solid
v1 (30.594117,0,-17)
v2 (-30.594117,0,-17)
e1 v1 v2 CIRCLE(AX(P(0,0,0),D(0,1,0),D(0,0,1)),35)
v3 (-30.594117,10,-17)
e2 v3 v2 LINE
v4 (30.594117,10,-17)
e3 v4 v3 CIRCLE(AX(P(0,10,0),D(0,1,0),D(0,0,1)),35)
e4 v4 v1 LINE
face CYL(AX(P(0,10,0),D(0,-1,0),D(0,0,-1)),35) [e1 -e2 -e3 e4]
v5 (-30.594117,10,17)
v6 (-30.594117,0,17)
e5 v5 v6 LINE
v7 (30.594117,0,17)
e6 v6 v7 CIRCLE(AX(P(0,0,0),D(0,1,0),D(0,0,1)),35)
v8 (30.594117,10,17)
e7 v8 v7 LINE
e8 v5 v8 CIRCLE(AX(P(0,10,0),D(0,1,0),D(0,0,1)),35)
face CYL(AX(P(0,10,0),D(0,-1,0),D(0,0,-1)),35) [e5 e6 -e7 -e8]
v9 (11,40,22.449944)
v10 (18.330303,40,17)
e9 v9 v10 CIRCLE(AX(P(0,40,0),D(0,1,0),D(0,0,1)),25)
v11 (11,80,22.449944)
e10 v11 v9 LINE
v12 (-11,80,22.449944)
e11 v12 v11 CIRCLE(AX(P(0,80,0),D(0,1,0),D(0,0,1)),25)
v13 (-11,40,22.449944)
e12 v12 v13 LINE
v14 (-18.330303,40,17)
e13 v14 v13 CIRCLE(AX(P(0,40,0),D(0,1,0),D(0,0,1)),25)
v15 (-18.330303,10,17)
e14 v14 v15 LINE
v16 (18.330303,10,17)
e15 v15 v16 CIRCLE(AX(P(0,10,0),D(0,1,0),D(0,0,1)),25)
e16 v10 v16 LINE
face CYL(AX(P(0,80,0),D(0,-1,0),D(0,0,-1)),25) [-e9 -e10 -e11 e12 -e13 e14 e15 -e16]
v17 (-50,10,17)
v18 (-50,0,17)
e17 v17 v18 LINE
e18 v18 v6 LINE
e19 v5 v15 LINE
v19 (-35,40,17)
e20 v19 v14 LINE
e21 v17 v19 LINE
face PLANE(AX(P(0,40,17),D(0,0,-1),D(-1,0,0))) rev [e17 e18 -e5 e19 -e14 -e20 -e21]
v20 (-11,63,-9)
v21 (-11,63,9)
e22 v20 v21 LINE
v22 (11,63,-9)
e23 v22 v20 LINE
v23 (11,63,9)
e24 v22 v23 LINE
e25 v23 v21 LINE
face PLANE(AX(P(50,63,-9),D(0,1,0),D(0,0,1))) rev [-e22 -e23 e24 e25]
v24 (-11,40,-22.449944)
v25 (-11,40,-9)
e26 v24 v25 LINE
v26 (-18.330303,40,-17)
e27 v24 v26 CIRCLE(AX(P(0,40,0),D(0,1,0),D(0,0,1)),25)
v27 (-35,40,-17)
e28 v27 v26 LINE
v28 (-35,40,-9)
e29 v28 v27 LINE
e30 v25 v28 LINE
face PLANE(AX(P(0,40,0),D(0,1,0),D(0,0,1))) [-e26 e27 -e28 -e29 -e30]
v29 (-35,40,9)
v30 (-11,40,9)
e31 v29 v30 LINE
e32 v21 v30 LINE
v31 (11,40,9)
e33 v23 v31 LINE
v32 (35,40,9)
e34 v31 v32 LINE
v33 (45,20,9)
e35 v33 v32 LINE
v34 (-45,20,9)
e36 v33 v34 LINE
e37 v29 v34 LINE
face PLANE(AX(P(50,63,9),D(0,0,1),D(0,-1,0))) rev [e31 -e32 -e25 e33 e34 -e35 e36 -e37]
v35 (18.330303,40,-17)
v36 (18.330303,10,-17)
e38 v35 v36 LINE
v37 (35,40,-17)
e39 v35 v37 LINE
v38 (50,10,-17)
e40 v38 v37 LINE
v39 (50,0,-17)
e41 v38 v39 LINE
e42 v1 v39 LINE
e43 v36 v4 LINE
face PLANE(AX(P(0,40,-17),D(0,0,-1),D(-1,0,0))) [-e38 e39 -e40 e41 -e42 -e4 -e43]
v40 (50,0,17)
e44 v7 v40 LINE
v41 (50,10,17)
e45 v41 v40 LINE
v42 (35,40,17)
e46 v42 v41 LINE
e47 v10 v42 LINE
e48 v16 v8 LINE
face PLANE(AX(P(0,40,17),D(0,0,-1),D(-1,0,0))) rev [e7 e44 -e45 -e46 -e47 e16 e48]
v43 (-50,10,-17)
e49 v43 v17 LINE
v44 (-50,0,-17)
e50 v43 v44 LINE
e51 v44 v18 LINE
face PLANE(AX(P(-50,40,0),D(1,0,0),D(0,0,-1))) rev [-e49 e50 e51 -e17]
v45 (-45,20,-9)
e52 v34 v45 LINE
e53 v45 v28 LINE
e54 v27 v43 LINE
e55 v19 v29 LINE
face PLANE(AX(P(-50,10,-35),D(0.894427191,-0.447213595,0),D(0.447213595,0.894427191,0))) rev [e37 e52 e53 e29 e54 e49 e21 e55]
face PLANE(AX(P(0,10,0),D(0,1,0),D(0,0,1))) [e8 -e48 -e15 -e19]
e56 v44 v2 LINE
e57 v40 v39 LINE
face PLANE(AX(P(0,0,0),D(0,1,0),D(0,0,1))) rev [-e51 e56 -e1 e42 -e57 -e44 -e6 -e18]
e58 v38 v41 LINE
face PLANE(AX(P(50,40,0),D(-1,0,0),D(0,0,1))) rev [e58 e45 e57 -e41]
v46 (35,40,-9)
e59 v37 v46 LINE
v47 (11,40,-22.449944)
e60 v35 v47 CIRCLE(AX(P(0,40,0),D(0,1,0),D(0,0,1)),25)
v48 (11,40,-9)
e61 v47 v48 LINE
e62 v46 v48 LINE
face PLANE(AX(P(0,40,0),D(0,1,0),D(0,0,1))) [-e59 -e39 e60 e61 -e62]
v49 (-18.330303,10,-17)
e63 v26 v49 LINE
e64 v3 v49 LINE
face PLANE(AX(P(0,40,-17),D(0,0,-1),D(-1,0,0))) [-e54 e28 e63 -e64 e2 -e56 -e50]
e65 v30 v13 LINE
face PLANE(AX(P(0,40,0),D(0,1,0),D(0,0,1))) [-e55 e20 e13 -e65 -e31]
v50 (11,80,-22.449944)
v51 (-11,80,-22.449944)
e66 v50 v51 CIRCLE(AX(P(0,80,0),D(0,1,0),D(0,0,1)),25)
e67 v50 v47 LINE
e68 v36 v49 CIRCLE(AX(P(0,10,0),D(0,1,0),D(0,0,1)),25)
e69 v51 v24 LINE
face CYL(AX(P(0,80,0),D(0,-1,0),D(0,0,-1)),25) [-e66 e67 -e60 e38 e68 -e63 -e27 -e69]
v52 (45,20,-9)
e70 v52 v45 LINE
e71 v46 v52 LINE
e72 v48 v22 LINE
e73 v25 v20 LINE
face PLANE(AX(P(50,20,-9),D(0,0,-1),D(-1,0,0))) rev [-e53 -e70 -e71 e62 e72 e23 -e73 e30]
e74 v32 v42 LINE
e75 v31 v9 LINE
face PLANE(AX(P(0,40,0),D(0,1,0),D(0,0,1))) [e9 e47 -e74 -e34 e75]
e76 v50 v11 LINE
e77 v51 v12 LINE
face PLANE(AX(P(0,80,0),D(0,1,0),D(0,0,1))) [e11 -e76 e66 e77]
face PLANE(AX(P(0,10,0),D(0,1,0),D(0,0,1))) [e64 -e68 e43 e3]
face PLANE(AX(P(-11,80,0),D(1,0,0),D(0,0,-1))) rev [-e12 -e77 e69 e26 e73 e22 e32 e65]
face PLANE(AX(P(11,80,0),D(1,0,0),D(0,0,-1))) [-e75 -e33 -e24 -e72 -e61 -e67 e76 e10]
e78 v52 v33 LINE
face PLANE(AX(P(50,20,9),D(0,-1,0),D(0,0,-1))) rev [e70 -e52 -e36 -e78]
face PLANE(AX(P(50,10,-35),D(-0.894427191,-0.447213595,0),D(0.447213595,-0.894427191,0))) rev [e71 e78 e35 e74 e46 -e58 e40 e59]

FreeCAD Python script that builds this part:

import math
import FreeCAD as App
import Part
import Sketcher

V = App.Vector


def add_polygon(sketch, points):
    """Adds a closed chain of lines whose ends are joined by coincident constraints."""
    first, n = sketch.GeometryCount, len(points)
    for a, b in zip(points, points[1:] + points[:1]):
        sketch.addGeometry(Part.LineSegment(App.Vector(*a, 0), App.Vector(*b, 0)), False)
    for i in range(n):
        sketch.addConstraint(Sketcher.Constraint("Coincident", first + i, 2, first + (i + 1) % n, 1))

doc = App.newDocument("Part")
body = doc.addObject("PartDesign::Body", "Body")

# Sketch on XZ plane
sketch1 = body.newObject("Sketcher::SketchObject", "Sketch")
sketch1.AttachmentSupport = (doc.getObject("XZ_Plane"), [""])
sketch1.MapMode = "FlatFace"
sketch1.addGeometry(Part.ArcOfCircle(Part.Circle(V(0, 0, 0), V(0, 0, 1), 25), math.radians(-116), math.radians(-64)), False)
sketch1.addGeometry(Part.LineSegment(V(-11, -22, 0), V(-11, 22, 0)), False)
sketch1.addGeometry(Part.ArcOfCircle(Part.Circle(V(0, 0, 0), V(0, 0, 1), 25), math.radians(64), math.radians(116)), False)
sketch1.addGeometry(Part.LineSegment(V(11, 22, 0), V(11, -22, 0)), False)
sketch1.addConstraint(Sketcher.Constraint("Coincident", 0, 1, 1, 1))
sketch1.addConstraint(Sketcher.Constraint("Coincident", 1, 2, 2, 2))
sketch1.addConstraint(Sketcher.Constraint("Coincident", 2, 1, 3, 1))
sketch1.addConstraint(Sketcher.Constraint("Coincident", 3, 2, 0, 2))
sketch1.addConstraint(Sketcher.Constraint("Vertical", 1))
sketch1.addConstraint(Sketcher.Constraint("Vertical", 3))
sketch1.addConstraint(Sketcher.Constraint("Coincident", 0, 3, -1, 1))
sketch1.addConstraint(Sketcher.Constraint("Coincident", 2, 3, -1, 1))
sketch1.addConstraint(Sketcher.Constraint("Equal", 0, 2))
sketch1.addConstraint(Sketcher.Constraint("Horizontal", 1, 2, 2, 1))
sketch1.addConstraint(Sketcher.Constraint("Radius", 0, 25.0))
sketch1.addConstraint(Sketcher.Constraint("DistanceX", 0, 1, -1, 1, 11.0))
pad1 = body.newObject("PartDesign::Pad", "Pad")
pad1.Profile = sketch1
pad1.Length = 80
pad1.Reversed = True

# Sketch on XZ plane
sketch2 = body.newObject("Sketcher::SketchObject", "Sketch001")
sketch2.AttachmentSupport = (doc.getObject("XZ_Plane"), [""])
sketch2.MapMode = "FlatFace"
sketch2.addGeometry(Part.ArcOfCircle(Part.Circle(V(0, 0, 0), V(0, 0, 1), 25), math.radians(-116), math.radians(-64)), False)
sketch2.addGeometry(Part.ArcOfCircle(Part.Circle(V(0, 0, 0), V(0, 0, 1), 25), math.radians(-64), math.radians(-43)), False)
sketch2.addGeometry(Part.LineSegment(V(18, -17, 0), V(31, -17, 0)), False)
sketch2.addGeometry(Part.ArcOfCircle(Part.Circle(V(0, 0, 0), V(0, 0, 1), 35), math.radians(-151), math.radians(-29)), False)
sketch2.addGeometry(Part.LineSegment(V(-31, -17, 0), V(-18, -17, 0)), False)
sketch2.addGeometry(Part.ArcOfCircle(Part.Circle(V(0, 0, 0), V(0, 0, 1), 25), math.radians(-137), math.radians(-116)), False)
sketch2.addGeometry(Part.ArcOfCircle(Part.Circle(V(0, 0, 0), V(0, 0, 1), 25), math.radians(43), math.radians(64)), False)
sketch2.addGeometry(Part.ArcOfCircle(Part.Circle(V(0, 0, 0), V(0, 0, 1), 25), math.radians(64), math.radians(116)), False)
sketch2.addGeometry(Part.ArcOfCircle(Part.Circle(V(0, 0, 0), V(0, 0, 1), 25), math.radians(116), math.radians(137)), False)
sketch2.addGeometry(Part.LineSegment(V(-18, 17, 0), V(-31, 17, 0)), False)
sketch2.addGeometry(Part.ArcOfCircle(Part.Circle(V(0, 0, 0), V(0, 0, 1), 35), math.radians(29), math.radians(151)), False)
sketch2.addGeometry(Part.LineSegment(V(31, 17, 0), V(18, 17, 0)), False)
sketch2.addConstraint(Sketcher.Constraint("Tangent", 0, 2, 1, 1))
sketch2.addConstraint(Sketcher.Constraint("Coincident", 1, 2, 2, 1))
sketch2.addConstraint(Sketcher.Constraint("Coincident", 2, 2, 3, 2))
sketch2.addConstraint(Sketcher.Constraint("Coincident", 3, 1, 4, 1))
sketch2.addConstraint(Sketcher.Constraint("Coincident", 4, 2, 5, 1))
sketch2.addConstraint(Sketcher.Constraint("Tangent", 5, 2, 0, 1))
sketch2.addConstraint(Sketcher.Constraint("Tangent", 6, 2, 7, 1))
sketch2.addConstraint(Sketcher.Constraint("Tangent", 7, 2, 8, 1))
sketch2.addConstraint(Sketcher.Constraint("Coincident", 8, 2, 9, 1))
sketch2.addConstraint(Sketcher.Constraint("Coincident", 9, 2, 10, 2))
sketch2.addConstraint(Sketcher.Constraint("Coincident", 10, 1, 11, 1))
sketch2.addConstraint(Sketcher.Constraint("Coincident", 11, 2, 6, 1))
sketch2.addConstraint(Sketcher.Constraint("Horizontal", 2))
sketch2.addConstraint(Sketcher.Constraint("Horizontal", 4))
sketch2.addConstraint(Sketcher.Constraint("Horizontal", 9))
sketch2.addConstraint(Sketcher.Constraint("Horizontal", 11))
sketch2.addConstraint(Sketcher.Constraint("Coincident", 0, 3, -1, 1))
sketch2.addConstraint(Sketcher.Constraint("Coincident", 3, 3, -1, 1))
sketch2.addConstraint(Sketcher.Constraint("Coincident", 6, 3, -1, 1))
sketch2.addConstraint(Sketcher.Constraint("Coincident", 8, 3, -1, 1))
sketch2.addConstraint(Sketcher.Constraint("Coincident", 10, 3, -1, 1))
sketch2.addConstraint(Sketcher.Constraint("Equal", 0, 1))
sketch2.addConstraint(Sketcher.Constraint("Equal", 1, 5))
sketch2.addConstraint(Sketcher.Constraint("Equal", 5, 6))
sketch2.addConstraint(Sketcher.Constraint("Equal", 3, 10))
sketch2.addConstraint(Sketcher.Constraint("Horizontal", 2, 2, 3, 1))
sketch2.addConstraint(Sketcher.Constraint("Horizontal", 0, 2, 5, 2))
sketch2.addConstraint(Sketcher.Constraint("Horizontal", 6, 2, 7, 2))
sketch2.addConstraint(Sketcher.Constraint("Horizontal", 9, 2, 10, 1))
sketch2.addConstraint(Sketcher.Constraint("Vertical", 0, 2, 6, 2))
sketch2.addConstraint(Sketcher.Constraint("Vertical", 4, 2, 8, 2))
sketch2.addConstraint(Sketcher.Constraint("Radius", 0, 25.0))
sketch2.addConstraint(Sketcher.Constraint("Radius", 3, 35.0))
sketch2.addConstraint(Sketcher.Constraint("DistanceX", -1, 1, 0, 2, 11.0))
sketch2.addConstraint(Sketcher.Constraint("DistanceY", 1, 2, -1, 1, 17.0))
pad2 = body.newObject("PartDesign::Pad", "Pad001")
pad2.Profile = sketch2
pad2.Length = 10
pad2.Reversed = True

# Sketch on XZ plane
sketch3 = body.newObject("Sketcher::SketchObject", "Sketch002")
sketch3.AttachmentSupport = (doc.getObject("XZ_Plane"), [""])
sketch3.MapMode = "FlatFace"
sketch3.addGeometry(Part.LineSegment(V(-50, -17, 0), V(-50, 17, 0)), False)
sketch3.addGeometry(Part.LineSegment(V(-50, 17, 0), V(-18, 17, 0)), False)
sketch3.addGeometry(Part.ArcOfCircle(Part.Circle(V(0, 0, 0), V(0, 0, 1), 25), math.radians(116), math.radians(137)), False)
sketch3.addGeometry(Part.LineSegment(V(-11, 22, 0), V(-11, -22, 0)), False)
sketch3.addGeometry(Part.ArcOfCircle(Part.Circle(V(0, 0, 0), V(0, 0, 1), 25), math.radians(-137), math.radians(-116)), False)
sketch3.addGeometry(Part.LineSegment(V(-18, -17, 0), V(-50, -17, 0)), False)
sketch3.addGeometry(Part.LineSegment(V(50, 17, 0), V(50, -17, 0)), False)
sketch3.addGeometry(Part.LineSegment(V(50, -17, 0), V(18, -17, 0)), False)
sketch3.addGeometry(Part.ArcOfCircle(Part.Circle(V(0, 0, 0), V(0, 0, 1), 25), math.radians(-64), math.radians(-43)), False)
sketch3.addGeometry(Part.LineSegment(V(11, -22, 0), V(11, 22, 0)), False)
sketch3.addGeometry(Part.ArcOfCircle(Part.Circle(V(0, 0, 0), V(0, 0, 1), 25), math.radians(43), math.radians(64)), False)
sketch3.addGeometry(Part.LineSegment(V(18, 17, 0), V(50, 17, 0)), False)
sketch3.addConstraint(Sketcher.Constraint("Coincident", 0, 2, 1, 1))
sketch3.addConstraint(Sketcher.Constraint("Coincident", 1, 2, 2, 2))
sketch3.addConstraint(Sketcher.Constraint("Coincident", 2, 1, 3, 1))
sketch3.addConstraint(Sketcher.Constraint("Coincident", 3, 2, 4, 2))
sketch3.addConstraint(Sketcher.Constraint("Coincident", 4, 1, 5, 1))
sketch3.addConstraint(Sketcher.Constraint("Coincident", 5, 2, 0, 1))
sketch3.addConstraint(Sketcher.Constraint("Coincident", 6, 2, 7, 1))
sketch3.addConstraint(Sketcher.Constraint("Coincident", 7, 2, 8, 2))
sketch3.addConstraint(Sketcher.Constraint("Coincident", 8, 1, 9, 1))
sketch3.addConstraint(Sketcher.Constraint("Coincident", 9, 2, 10, 2))
sketch3.addConstraint(Sketcher.Constraint("Coincident", 10, 1, 11, 1))
sketch3.addConstraint(Sketcher.Constraint("Coincident", 11, 2, 6, 1))
sketch3.addConstraint(Sketcher.Constraint("Vertical", 0))
sketch3.addConstraint(Sketcher.Constraint("Horizontal", 1))
sketch3.addConstraint(Sketcher.Constraint("Vertical", 3))
sketch3.addConstraint(Sketcher.Constraint("Horizontal", 5))
sketch3.addConstraint(Sketcher.Constraint("Vertical", 6))
sketch3.addConstraint(Sketcher.Constraint("Horizontal", 7))
sketch3.addConstraint(Sketcher.Constraint("Vertical", 9))
sketch3.addConstraint(Sketcher.Constraint("Horizontal", 11))
sketch3.addConstraint(Sketcher.Constraint("Coincident", 2, 3, -1, 1))
sketch3.addConstraint(Sketcher.Constraint("Coincident", 4, 3, -1, 1))
sketch3.addConstraint(Sketcher.Constraint("Coincident", 8, 3, -1, 1))
sketch3.addConstraint(Sketcher.Constraint("Coincident", 10, 3, -1, 1))
sketch3.addConstraint(Sketcher.Constraint("Equal", 2, 4))
sketch3.addConstraint(Sketcher.Constraint("Equal", 4, 8))
sketch3.addConstraint(Sketcher.Constraint("Equal", 8, 10))
sketch3.addConstraint(Sketcher.Constraint("Symmetric", 0, 2, 6, 2, -1, 1))
sketch3.addConstraint(Sketcher.Constraint("Horizontal", 5, 2, 6, 2))
sketch3.addConstraint(Sketcher.Constraint("Horizontal", 3, 2, 8, 1))
sketch3.addConstraint(Sketcher.Constraint("Horizontal", 1, 2, 10, 1))
sketch3.addConstraint(Sketcher.Constraint("Radius", 2, 25.0))
sketch3.addConstraint(Sketcher.Constraint("DistanceY", 0, 1, 0, 2, 34.0))
sketch3.addConstraint(Sketcher.Constraint("DistanceX", 0, 2, -1, 1, 50.0))
sketch3.addConstraint(Sketcher.Constraint("DistanceX", 2, 1, -1, 1, 11.0))
pad3 = body.newObject("PartDesign::Pad", "Pad002")
pad3.Profile = sketch3
pad3.Length = 40
pad3.Reversed = True

# Sketch on XY plane
sketch4 = body.newObject("Sketcher::SketchObject", "Sketch003")
sketch4.AttachmentSupport = (doc.getObject("XY_Plane"), [""])
sketch4.MapMode = "FlatFace"
sketch4.AttachmentOffset = App.Placement(V(0, 0, 17), App.Rotation())
add_polygon(sketch4, [(-50, 10), (-35, 40), (-50, 40)])  # lines 0-2
add_polygon(sketch4, [(35, 40), (50, 10), (50, 40)])  # lines 3-5
sketch4.addConstraint(Sketcher.Constraint("Horizontal", 1))
sketch4.addConstraint(Sketcher.Constraint("Vertical", 2))
sketch4.addConstraint(Sketcher.Constraint("Vertical", 4))
sketch4.addConstraint(Sketcher.Constraint("Horizontal", 5))
sketch4.addConstraint(Sketcher.Constraint("Symmetric", 2, 2, 3, 2, -2))
sketch4.addConstraint(Sketcher.Constraint("Symmetric", 0, 2, 5, 2, -2))
sketch4.addConstraint(Sketcher.Constraint("DistanceX", 1, 2, 1, 1, 15.0))
sketch4.addConstraint(Sketcher.Constraint("DistanceY", 2, 2, 2, 1, 30.0))
sketch4.addConstraint(Sketcher.Constraint("DistanceX", 0, 2, -1, 1, 35.0))
sketch4.addConstraint(Sketcher.Constraint("DistanceY", -1, 1, 0, 2, 40.0))
pocket1 = body.newObject("PartDesign::Pocket", "Pocket")
pocket1.Profile = sketch4
pocket1.Type = "ThroughAll"

# Sketch on YZ plane
sketch5 = body.newObject("Sketcher::SketchObject", "Sketch004")
sketch5.AttachmentSupport = (doc.getObject("YZ_Plane"), [""])
sketch5.MapMode = "FlatFace"
sketch5.AttachmentOffset = App.Placement(V(0, 0, -50), App.Rotation())
add_polygon(sketch5, [(63, -9), (20, -9), (20, 9), (63, 9)])  # lines 0-3
sketch5.addConstraint(Sketcher.Constraint("Horizontal", 0))
sketch5.addConstraint(Sketcher.Constraint("Vertical", 1))
sketch5.addConstraint(Sketcher.Constraint("Horizontal", 2))
sketch5.addConstraint(Sketcher.Constraint("Vertical", 3))
sketch5.addConstraint(Sketcher.Constraint("DistanceX", 0, 2, 0, 1, 43.0))
sketch5.addConstraint(Sketcher.Constraint("DistanceY", 1, 1, 1, 2, 18.0))
sketch5.addConstraint(Sketcher.Constraint("DistanceX", -1, 1, 0, 2, 20.0))
sketch5.addConstraint(Sketcher.Constraint("DistanceY", 0, 2, -1, 1, 9.0))
pocket2 = body.newObject("PartDesign::Pocket", "Pocket001")
pocket2.Profile = sketch5
pocket2.Type = "ThroughAll"
pocket2.Reversed = True

doc.recompute()
